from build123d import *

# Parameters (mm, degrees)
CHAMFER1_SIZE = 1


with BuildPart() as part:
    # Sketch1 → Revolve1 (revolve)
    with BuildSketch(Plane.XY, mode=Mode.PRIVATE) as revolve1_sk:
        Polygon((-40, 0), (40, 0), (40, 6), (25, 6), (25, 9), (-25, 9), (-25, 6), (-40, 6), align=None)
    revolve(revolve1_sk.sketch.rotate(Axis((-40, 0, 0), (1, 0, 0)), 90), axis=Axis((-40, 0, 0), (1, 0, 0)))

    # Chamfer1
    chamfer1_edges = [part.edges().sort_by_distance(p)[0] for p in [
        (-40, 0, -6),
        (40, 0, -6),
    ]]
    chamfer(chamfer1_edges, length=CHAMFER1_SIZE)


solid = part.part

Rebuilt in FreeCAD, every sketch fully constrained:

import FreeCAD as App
import Part
import Sketcher

V = App.Vector


def edges_at(feature, points):
    """Names of the edges that pass closest to the given points."""
    edges = feature.Shape.Edges
    near = lambda p: min(range(len(edges)), key=lambda i: edges[i].distToShape(Part.Vertex(*p))[0])
    return sorted({f"Edge{near(p) + 1}" for p in points})

doc = App.newDocument("Part")
params = doc.addObject("Spreadsheet::Sheet", "Params")
for row, (alias, value) in enumerate([
    ("sketch1_width", "80 mm"),
    ("sketch1_width2", "15 mm"),
    ("sketch1_height", "6 mm"),
    ("sketch1_height2", "3 mm"),
    ("revolution_angle", "360 deg"),
    ("chamfer_size", "1 mm"),
], start=1):
    params.set(f"A{row}", alias)
    params.set(f"B{row}", "=" + value)
    params.setAlias(f"B{row}", alias)

body = doc.addObject("PartDesign::Body", "Body")

# Sketch on XY plane
sketch1 = body.newObject("Sketcher::SketchObject", "Sketch")
sketch1.AttachmentSupport = (doc.getObject("XY_Plane"), [""])
sketch1.MapMode = "FlatFace"
sketch1.addGeometry(Part.LineSegment(V(-40, 0, 0), V(40, 0, 0)), False)
sketch1.addGeometry(Part.LineSegment(V(40, 0, 0), V(40, 6, 0)), False)
sketch1.addGeometry(Part.LineSegment(V(40, 6, 0), V(25, 6, 0)), False)
sketch1.addGeometry(Part.LineSegment(V(25, 6, 0), V(25, 9, 0)), False)
sketch1.addGeometry(Part.LineSegment(V(25, 9, 0), V(-25, 9, 0)), False)
sketch1.addGeometry(Part.LineSegment(V(-25, 9, 0), V(-25, 6, 0)), False)
sketch1.addGeometry(Part.LineSegment(V(-25, 6, 0), V(-40, 6, 0)), False)
sketch1.addGeometry(Part.LineSegment(V(-40, 6, 0), V(-40, 0, 0)), False)
sketch1.addConstraint(Sketcher.Constraint("Coincident", 0, 2, 1, 1))
sketch1.addConstraint(Sketcher.Constraint("Coincident", 1, 2, 2, 1))
sketch1.addConstraint(Sketcher.Constraint("Coincident", 2, 2, 3, 1))
sketch1.addConstraint(Sketcher.Constraint("Coincident", 3, 2, 4, 1))
sketch1.addConstraint(Sketcher.Constraint("Coincident", 4, 2, 5, 1))
sketch1.addConstraint(Sketcher.Constraint("Coincident", 5, 2, 6, 1))
sketch1.addConstraint(Sketcher.Constraint("Coincident", 6, 2, 7, 1))
sketch1.addConstraint(Sketcher.Constraint("Coincident", 7, 2, 0, 1))
sketch1.addConstraint(Sketcher.Constraint("Horizontal", 0))
sketch1.addConstraint(Sketcher.Constraint("Vertical", 1))
sketch1.addConstraint(Sketcher.Constraint("Horizontal", 2))
sketch1.addConstraint(Sketcher.Constraint("Vertical", 3))
sketch1.addConstraint(Sketcher.Constraint("Horizontal", 4))
sketch1.addConstraint(Sketcher.Constraint("Vertical", 5))
sketch1.addConstraint(Sketcher.Constraint("Horizontal", 6))
sketch1.addConstraint(Sketcher.Constraint("Vertical", 7))
sketch1.addConstraint(Sketcher.Constraint("Symmetric", 0, 2, 7, 2, -1, 1))
sketch1.addConstraint(Sketcher.Constraint("Symmetric", 2, 2, 5, 2, -2))
sketch1.addConstraint(Sketcher.Constraint("DistanceX", 0, 1, 0, 2, 80.0))
sketch1.addConstraint(Sketcher.Constraint("DistanceX", 2, 2, 2, 1, 15.0))
sketch1.addConstraint(Sketcher.Constraint("DistanceY", 1, 1, 1, 2, 6.0))
sketch1.addConstraint(Sketcher.Constraint("DistanceY", 3, 1, 3, 2, 3.0))
sketch1.setExpression("Constraints[18]", "Params.sketch1_width")
sketch1.setExpression("Constraints[19]", "Params.sketch1_width2")
sketch1.setExpression("Constraints[20]", "Params.sketch1_height")
sketch1.setExpression("Constraints[21]", "Params.sketch1_height2")
revolution = body.newObject("PartDesign::Revolution", "Revolution")
revolution.Profile = sketch1
revolution.ReferenceAxis = (sketch1, ["H_Axis"])
revolution.setExpression("Angle", "Params.revolution_angle")
doc.recompute()

chamfer = body.newObject("PartDesign::Chamfer", "Chamfer")
chamfer.Base = (revolution, edges_at(revolution, [(-40, 0, -6), (40, 0, -6)]))
chamfer.setExpression("Size", "Params.chamfer_size")

doc.recompute()
